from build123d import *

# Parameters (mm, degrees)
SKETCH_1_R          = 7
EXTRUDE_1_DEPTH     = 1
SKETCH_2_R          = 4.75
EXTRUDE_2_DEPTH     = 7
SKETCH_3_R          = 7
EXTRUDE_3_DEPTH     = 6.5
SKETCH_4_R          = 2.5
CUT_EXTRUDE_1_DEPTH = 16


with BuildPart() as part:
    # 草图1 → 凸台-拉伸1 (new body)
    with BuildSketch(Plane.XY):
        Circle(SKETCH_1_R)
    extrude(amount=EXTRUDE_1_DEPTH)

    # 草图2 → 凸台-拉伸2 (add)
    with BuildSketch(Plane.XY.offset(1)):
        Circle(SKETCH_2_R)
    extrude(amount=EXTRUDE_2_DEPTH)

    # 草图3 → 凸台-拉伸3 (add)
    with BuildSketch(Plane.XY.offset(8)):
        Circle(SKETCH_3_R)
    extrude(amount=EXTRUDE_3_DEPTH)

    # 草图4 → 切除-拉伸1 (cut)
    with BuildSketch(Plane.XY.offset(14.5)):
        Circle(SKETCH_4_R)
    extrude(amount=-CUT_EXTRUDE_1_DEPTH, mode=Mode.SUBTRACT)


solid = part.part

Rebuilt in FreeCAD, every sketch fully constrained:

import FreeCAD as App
import Part
import Sketcher
Q = App.Units.Quantity

doc = App.newDocument("Part")
body = doc.addObject("PartDesign::Body", "Body")

# Sketch on XY plane
sketch1 = body.newObject("Sketcher::SketchObject", "Sketch")
sketch1.AttachmentSupport = (doc.getObject("XY_Plane"), [""])
sketch1.MapMode = "FlatFace"
sketch1.addGeometry(Part.Circle(App.Vector(0, 0, 0), App.Vector(0, 0, 1), 7), False)
sketch1.addConstraint(Sketcher.Constraint("Coincident", 0, 3, -1, 1))
sketch1.addConstraint(Sketcher.Constraint("Diameter", 0, Q("14 mm")))
pad1 = body.newObject("PartDesign::Pad", "Pad")
pad1.Profile = sketch1
pad1.Length = 1

# Sketch on XY plane
sketch2 = body.newObject("Sketcher::SketchObject", "Sketch001")
sketch2.AttachmentSupport = (doc.getObject("XY_Plane"), [""])
sketch2.MapMode = "FlatFace"
sketch2.AttachmentOffset = App.Placement(App.Vector(0, 0, 1), App.Rotation())
sketch2.addGeometry(Part.Circle(App.Vector(0, 0, 0), App.Vector(0, 0, 1), 4.8), False)
sketch2.addConstraint(Sketcher.Constraint("Coincident", 0, 3, -1, 1))
sketch2.addConstraint(Sketcher.Constraint("Diameter", 0, Q("9.5 mm")))
pad2 = body.newObject("PartDesign::Pad", "Pad001")
pad2.Profile = sketch2
pad2.Length = 7

# Sketch on XY plane
sketch3 = body.newObject("Sketcher::SketchObject", "Sketch002")
sketch3.AttachmentSupport = (doc.getObject("XY_Plane"), [""])
sketch3.MapMode = "FlatFace"
sketch3.AttachmentOffset = App.Placement(App.Vector(0, 0, 8), App.Rotation())
sketch3.addGeometry(Part.Circle(App.Vector(0, 0, 0), App.Vector(0, 0, 1), 7), False)
sketch3.addConstraint(Sketcher.Constraint("Coincident", 0, 3, -1, 1))
sketch3.addConstraint(Sketcher.Constraint("Diameter", 0, Q("14 mm")))
pad3 = body.newObject("PartDesign::Pad", "Pad002")
pad3.Profile = sketch3
pad3.Length = 6.5

# Sketch on XY plane
sketch4 = body.newObject("Sketcher::SketchObject", "Sketch003")
sketch4.AttachmentSupport = (doc.getObject("XY_Plane"), [""])
sketch4.MapMode = "FlatFace"
sketch4.AttachmentOffset = App.Placement(App.Vector(0, 0, 14.5), App.Rotation())
sketch4.addGeometry(Part.Circle(App.Vector(0, 0, 0), App.Vector(0, 0, 1), 2.5), False)
sketch4.addConstraint(Sketcher.Constraint("Coincident", 0, 3, -1, 1))
sketch4.addConstraint(Sketcher.Constraint("Diameter", 0, Q("5 mm")))
pocket1 = body.newObject("PartDesign::Pocket", "Pocket")
pocket1.Profile = sketch4
pocket1.Length = 16

doc.recompute()
